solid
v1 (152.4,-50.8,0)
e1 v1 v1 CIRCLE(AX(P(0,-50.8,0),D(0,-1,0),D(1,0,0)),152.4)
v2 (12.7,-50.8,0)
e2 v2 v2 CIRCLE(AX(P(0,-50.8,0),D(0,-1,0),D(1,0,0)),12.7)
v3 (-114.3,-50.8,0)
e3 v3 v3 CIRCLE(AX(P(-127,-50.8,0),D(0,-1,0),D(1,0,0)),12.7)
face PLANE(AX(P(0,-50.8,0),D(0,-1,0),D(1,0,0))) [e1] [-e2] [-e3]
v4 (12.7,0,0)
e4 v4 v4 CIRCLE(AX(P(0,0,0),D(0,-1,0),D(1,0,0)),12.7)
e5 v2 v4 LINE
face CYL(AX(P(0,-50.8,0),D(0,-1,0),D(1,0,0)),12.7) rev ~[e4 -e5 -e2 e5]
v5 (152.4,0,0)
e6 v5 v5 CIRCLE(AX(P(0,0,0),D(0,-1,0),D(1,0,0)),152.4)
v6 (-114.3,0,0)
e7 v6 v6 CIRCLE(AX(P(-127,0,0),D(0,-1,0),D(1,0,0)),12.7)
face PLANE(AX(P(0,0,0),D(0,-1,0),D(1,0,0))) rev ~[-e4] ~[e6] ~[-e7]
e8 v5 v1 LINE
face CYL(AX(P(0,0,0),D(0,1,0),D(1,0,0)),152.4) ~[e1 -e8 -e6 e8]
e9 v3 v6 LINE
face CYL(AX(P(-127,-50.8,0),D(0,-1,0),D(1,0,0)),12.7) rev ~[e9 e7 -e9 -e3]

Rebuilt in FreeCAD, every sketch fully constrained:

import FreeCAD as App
import Part
import Sketcher
Q = App.Units.Quantity

doc = App.newDocument("Part")
body = doc.addObject("PartDesign::Body", "Body")

# Sketch on XZ plane
sketch1 = body.newObject("Sketcher::SketchObject", "Sketch")
sketch1.AttachmentSupport = (doc.getObject("XZ_Plane"), [""])
sketch1.MapMode = "FlatFace"
sketch1.addGeometry(Part.Circle(App.Vector(0, 0, 0), App.Vector(0, 0, 1), 152), False)
sketch1.addConstraint([
    Sketcher.Constraint("Coincident", 0, 3, -1, 1),
    Sketcher.Constraint("Diameter", 0, Q("12 in")),
])
pad1 = body.newObject("PartDesign::Pad", "Pad")
pad1.Profile = sketch1
pad1.Length = Q("2 in")

# Sketch on XZ plane
sketch2 = body.newObject("Sketcher::SketchObject", "Sketch001")
sketch2.AttachmentSupport = (doc.getObject("XZ_Plane"), [""])
sketch2.MapMode = "FlatFace"
sketch2.AttachmentOffset = App.Placement(App.Vector(0, 0, 2 * 25.4), App.Rotation())
sketch2.addGeometry([
    Part.Circle(App.Vector(-127, 0, 0), App.Vector(0, 0, 1), 13),
    Part.Circle(App.Vector(0, 0, 0), App.Vector(0, 0, 1), 13),
], False)
sketch2.addConstraint([
    Sketcher.Constraint("Coincident", 1, 3, -1, 1),
    Sketcher.Constraint("Equal", 0, 1),
    Sketcher.Constraint("PointOnObject", 0, 3, -1),
    Sketcher.Constraint("Diameter", 0, Q("1 in")),
    Sketcher.Constraint("DistanceX", 0, 3, -1, 1, Q("5 in")),
])
pocket1 = body.newObject("PartDesign::Pocket", "Pocket")
pocket1.Profile = sketch2
pocket1.Type = "ThroughAll"

doc.recompute()
